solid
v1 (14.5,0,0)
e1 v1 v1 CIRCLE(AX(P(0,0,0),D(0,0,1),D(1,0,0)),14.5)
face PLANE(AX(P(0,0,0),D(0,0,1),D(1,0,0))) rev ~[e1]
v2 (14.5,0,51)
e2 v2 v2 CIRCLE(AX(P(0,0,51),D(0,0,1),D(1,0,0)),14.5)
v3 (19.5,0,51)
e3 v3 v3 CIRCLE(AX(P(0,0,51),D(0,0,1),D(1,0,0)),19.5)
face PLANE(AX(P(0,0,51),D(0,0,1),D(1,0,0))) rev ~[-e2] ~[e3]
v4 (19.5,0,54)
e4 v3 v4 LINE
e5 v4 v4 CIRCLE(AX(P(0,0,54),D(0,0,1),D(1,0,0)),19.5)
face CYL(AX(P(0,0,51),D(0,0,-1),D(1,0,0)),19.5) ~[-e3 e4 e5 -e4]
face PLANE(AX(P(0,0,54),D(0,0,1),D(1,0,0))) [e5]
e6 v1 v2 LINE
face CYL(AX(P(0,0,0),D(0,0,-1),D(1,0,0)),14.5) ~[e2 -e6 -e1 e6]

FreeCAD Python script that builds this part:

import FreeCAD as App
import Part
import Sketcher

doc = App.newDocument("Part")
body = doc.addObject("PartDesign::Body", "Body")

sketch1 = body.newObject("Sketcher::SketchObject", "Sketch")
sketch1.AttachmentSupport = (doc.getObject("XY_Plane"), [""])
sketch1.MapMode = "FlatFace"
sketch1.addGeometry(Part.Circle(App.Vector(0, 0, 0), App.Vector(0, 0, 1), 14), False)
sketch1.addConstraint([
    Sketcher.Constraint("Coincident", 0, 3, -1, 1),
    Sketcher.Constraint("Diameter", 0, 29.0),
])
pad1 = body.newObject("PartDesign::Pad", "Pad")
pad1.Profile = sketch1
pad1.Length = 51

sketch2 = body.newObject("Sketcher::SketchObject", "Sketch001")
sketch2.AttachmentSupport = (doc.getObject("XY_Plane"), [""])
sketch2.MapMode = "FlatFace"
sketch2.AttachmentOffset = App.Placement(App.Vector(0, 0, 51), App.Rotation())
sketch2.addGeometry(Part.Circle(App.Vector(0, 0, 0), App.Vector(0, 0, 1), 20), False)
sketch2.addConstraint([
    Sketcher.Constraint("Coincident", 0, 3, -1, 1),
    Sketcher.Constraint("Diameter", 0, 39.0),
])
pad2 = body.newObject("PartDesign::Pad", "Pad001")
pad2.Profile = sketch2
pad2.Length = 3

doc.recompute()
